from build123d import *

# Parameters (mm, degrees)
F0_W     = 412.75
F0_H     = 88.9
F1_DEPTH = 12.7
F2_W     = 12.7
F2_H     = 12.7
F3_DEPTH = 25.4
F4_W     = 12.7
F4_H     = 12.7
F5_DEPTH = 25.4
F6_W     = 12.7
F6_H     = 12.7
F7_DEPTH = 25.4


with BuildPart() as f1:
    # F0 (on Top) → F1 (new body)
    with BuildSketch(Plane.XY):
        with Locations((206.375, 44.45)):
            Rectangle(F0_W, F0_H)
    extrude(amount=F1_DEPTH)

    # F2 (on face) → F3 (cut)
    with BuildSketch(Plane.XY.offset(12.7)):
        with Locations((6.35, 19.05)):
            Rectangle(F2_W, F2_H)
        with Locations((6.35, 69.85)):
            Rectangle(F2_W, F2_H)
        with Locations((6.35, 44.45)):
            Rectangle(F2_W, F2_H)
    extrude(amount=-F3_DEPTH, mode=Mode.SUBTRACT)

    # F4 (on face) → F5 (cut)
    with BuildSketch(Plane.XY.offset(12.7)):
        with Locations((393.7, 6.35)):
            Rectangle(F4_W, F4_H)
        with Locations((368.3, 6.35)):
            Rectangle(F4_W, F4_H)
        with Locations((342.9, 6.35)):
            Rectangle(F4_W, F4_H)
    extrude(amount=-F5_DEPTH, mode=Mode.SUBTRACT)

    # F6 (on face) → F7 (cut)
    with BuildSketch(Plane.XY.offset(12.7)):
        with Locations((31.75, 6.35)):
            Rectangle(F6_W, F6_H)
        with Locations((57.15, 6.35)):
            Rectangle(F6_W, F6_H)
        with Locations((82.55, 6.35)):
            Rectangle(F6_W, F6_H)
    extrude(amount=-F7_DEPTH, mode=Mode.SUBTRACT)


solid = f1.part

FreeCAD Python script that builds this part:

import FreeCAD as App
import Part
import Sketcher
from FreeCAD import Vector
Q = App.Units.Quantity

doc = App.newDocument("Part")
params = doc.addObject("Spreadsheet::Sheet", "Params")
for row, (alias, value) in enumerate([
    ("sketch1_height", "3.5 in"),
    ("sketch1_width", "16.25 in"),
    ("pad1_length", "0.5 in"),
    ("sketch2_width", "0.5 in"),
    ("pocket1_length", "1 in"),
    ("sketch3_width", "0.5 in"),
    ("pocket2_length", "1 in"),
    ("sketch4_width", "0.5 in"),
    ("pocket3_length", "1 in"),
], start=1):
    params.set(f"A{row}", alias)
    params.set(f"B{row}", "=" + value)
    params.setAlias(f"B{row}", alias)

body = doc.addObject("PartDesign::Body", "Body")

# Sketch on XY plane
sketch1 = body.newObject("Sketcher::SketchObject", "Sketch")
sketch1.AttachmentSupport = (doc.getObject("XY_Plane"), [""])
sketch1.MapMode = "FlatFace"
sketch1.addGeometry(Part.LineSegment(Vector(0, 89, 0), Vector(0, 0, 0)), False)
sketch1.addGeometry(Part.LineSegment(Vector(0, 0, 0), Vector(413, 0, 0)), False)
sketch1.addGeometry(Part.LineSegment(Vector(413, 0, 0), Vector(413, 89, 0)), False)
sketch1.addGeometry(Part.LineSegment(Vector(413, 89, 0), Vector(0, 89, 0)), False)
sketch1.addConstraint(Sketcher.Constraint("Coincident", 0, 2, 1, 1))
sketch1.addConstraint(Sketcher.Constraint("Coincident", 1, 2, 2, 1))
sketch1.addConstraint(Sketcher.Constraint("Coincident", 2, 2, 3, 1))
sketch1.addConstraint(Sketcher.Constraint("Coincident", 3, 2, 0, 1))
sketch1.addConstraint(Sketcher.Constraint("Vertical", 0))
sketch1.addConstraint(Sketcher.Constraint("Horizontal", 1))
sketch1.addConstraint(Sketcher.Constraint("Vertical", 2))
sketch1.addConstraint(Sketcher.Constraint("Horizontal", 3))
sketch1.addConstraint(Sketcher.Constraint("Coincident", 0, 2, -1, 1))
sketch1.addConstraint(Sketcher.Constraint("DistanceY", 0, 2, 0, 1, Q("3.5 in")))
sketch1.addConstraint(Sketcher.Constraint("DistanceX", 1, 1, 1, 2, Q("16.25 in")))
sketch1.setExpression("Constraints[9]", "Params.sketch1_height")
sketch1.setExpression("Constraints[10]", "Params.sketch1_width")
pad1 = body.newObject("PartDesign::Pad", "Pad")
pad1.Profile = sketch1
pad1.setExpression("Length", "Params.pad1_length")

# Sketch on XY plane
sketch2 = body.newObject("Sketcher::SketchObject", "Sketch001")
sketch2.AttachmentSupport = (doc.getObject("XY_Plane"), [""])
sketch2.MapMode = "FlatFace"
sketch2.AttachmentOffset = App.Placement(Vector(0, 0, 0.5 * 25.4), App.Rotation())
sketch2.addGeometry(Part.LineSegment(Vector(0, 25, 0), Vector(0, 13, 0)), False)
sketch2.addGeometry(Part.LineSegment(Vector(0, 13, 0), Vector(13, 13, 0)), False)
sketch2.addGeometry(Part.LineSegment(Vector(13, 13, 0), Vector(13, 25, 0)), False)
sketch2.addGeometry(Part.LineSegment(Vector(13, 25, 0), Vector(0, 25, 0)), False)
sketch2.addGeometry(Part.LineSegment(Vector(0, 76, 0), Vector(0, 64, 0)), False)
sketch2.addGeometry(Part.LineSegment(Vector(0, 64, 0), Vector(13, 64, 0)), False)
sketch2.addGeometry(Part.LineSegment(Vector(13, 64, 0), Vector(13, 76, 0)), False)
sketch2.addGeometry(Part.LineSegment(Vector(13, 76, 0), Vector(0, 76, 0)), False)
sketch2.addGeometry(Part.LineSegment(Vector(0, 51, 0), Vector(0, 38, 0)), False)
sketch2.addGeometry(Part.LineSegment(Vector(0, 38, 0), Vector(13, 38, 0)), False)
sketch2.addGeometry(Part.LineSegment(Vector(13, 38, 0), Vector(13, 51, 0)), False)
sketch2.addGeometry(Part.LineSegment(Vector(13, 51, 0), Vector(0, 51, 0)), False)
sketch2.addConstraint(Sketcher.Constraint("Coincident", 0, 2, 1, 1))
sketch2.addConstraint(Sketcher.Constraint("Coincident", 1, 2, 2, 1))
sketch2.addConstraint(Sketcher.Constraint("Coincident", 2, 2, 3, 1))
sketch2.addConstraint(Sketcher.Constraint("Coincident", 3, 2, 0, 1))
sketch2.addConstraint(Sketcher.Constraint("Coincident", 4, 2, 5, 1))
sketch2.addConstraint(Sketcher.Constraint("Coincident", 5, 2, 6, 1))
sketch2.addConstraint(Sketcher.Constraint("Coincident", 6, 2, 7, 1))
sketch2.addConstraint(Sketcher.Constraint("Coincident", 7, 2, 4, 1))
sketch2.addConstraint(Sketcher.Constraint("Coincident", 8, 2, 9, 1))
sketch2.addConstraint(Sketcher.Constraint("Coincident", 9, 2, 10, 1))
sketch2.addConstraint(Sketcher.Constraint("Coincident", 10, 2, 11, 1))
sketch2.addConstraint(Sketcher.Constraint("Coincident", 11, 2, 8, 1))
sketch2.addConstraint(Sketcher.Constraint("Vertical", 0))
sketch2.addConstraint(Sketcher.Constraint("Horizontal", 1))
sketch2.addConstraint(Sketcher.Constraint("Vertical", 2))
sketch2.addConstraint(Sketcher.Constraint("Horizontal", 3))
sketch2.addConstraint(Sketcher.Constraint("Vertical", 4))
sketch2.addConstraint(Sketcher.Constraint("Horizontal", 5))
sketch2.addConstraint(Sketcher.Constraint("Vertical", 6))
sketch2.addConstraint(Sketcher.Constraint("Horizontal", 7))
sketch2.addConstraint(Sketcher.Constraint("Vertical", 8))
sketch2.addConstraint(Sketcher.Constraint("Horizontal", 9))
sketch2.addConstraint(Sketcher.Constraint("Vertical", 10))
sketch2.addConstraint(Sketcher.Constraint("Horizontal", 11))
sketch2.addConstraint(Sketcher.Constraint("PointOnObject", 0, 2, -2))
sketch2.addConstraint(Sketcher.Constraint("PointOnObject", 4, 2, -2))
sketch2.addConstraint(Sketcher.Constraint("PointOnObject", 8, 2, -2))
sketch2.addConstraint(Sketcher.Constraint("Vertical", 2, 2, 5, 2))
sketch2.addConstraint(Sketcher.Constraint("Vertical", 6, 2, 9, 2))
sketch2.addConstraint(Sketcher.Constraint("Equal", 11, 0))
sketch2.addConstraint(Sketcher.Constraint("Equal", 2, 4))
sketch2.addConstraint(Sketcher.Constraint("Equal", 6, 8))
sketch2.addConstraint(Sketcher.Constraint("DistanceX", 1, 1, 1, 2, Q("0.5 in")))
sketch2.addConstraint(Sketcher.Constraint("DistanceY", -1, 1, 2, 2, Q("1 in")))
sketch2.addConstraint(Sketcher.Constraint("DistanceY", -1, 1, 6, 2, Q("3 in")))
sketch2.addConstraint(Sketcher.Constraint("DistanceY", -1, 1, 10, 2, Q("2 in")))
sketch2.setExpression("Constraints[32]", "Params.sketch2_width")
pocket1 = body.newObject("PartDesign::Pocket", "Pocket")
pocket1.Profile = sketch2
pocket1.setExpression("Length", "Params.pocket1_length")

# Sketch on XY plane
sketch3 = body.newObject("Sketcher::SketchObject", "Sketch002")
sketch3.AttachmentSupport = (doc.getObject("XY_Plane"), [""])
sketch3.MapMode = "FlatFace"
sketch3.AttachmentOffset = App.Placement(Vector(0, 0, 0.5 * 25.4), App.Rotation())
sketch3.addGeometry(Part.LineSegment(Vector(387, 13, 0), Vector(387, 0, 0)), False)
sketch3.addGeometry(Part.LineSegment(Vector(387, 0, 0), Vector(400, 0, 0)), False)
sketch3.addGeometry(Part.LineSegment(Vector(400, 0, 0), Vector(400, 13, 0)), False)
sketch3.addGeometry(Part.LineSegment(Vector(400, 13, 0), Vector(387, 13, 0)), False)
sketch3.addGeometry(Part.LineSegment(Vector(362, 13, 0), Vector(362, 0, 0)), False)
sketch3.addGeometry(Part.LineSegment(Vector(362, 0, 0), Vector(375, 0, 0)), False)
sketch3.addGeometry(Part.LineSegment(Vector(375, 0, 0), Vector(375, 13, 0)), False)
sketch3.addGeometry(Part.LineSegment(Vector(375, 13, 0), Vector(362, 13, 0)), False)
sketch3.addGeometry(Part.LineSegment(Vector(337, 13, 0), Vector(337, 0, 0)), False)
sketch3.addGeometry(Part.LineSegment(Vector(337, 0, 0), Vector(349, 0, 0)), False)
sketch3.addGeometry(Part.LineSegment(Vector(349, 0, 0), Vector(349, 13, 0)), False)
sketch3.addGeometry(Part.LineSegment(Vector(349, 13, 0), Vector(337, 13, 0)), False)
sketch3.addConstraint(Sketcher.Constraint("Coincident", 0, 2, 1, 1))
sketch3.addConstraint(Sketcher.Constraint("Coincident", 1, 2, 2, 1))
sketch3.addConstraint(Sketcher.Constraint("Coincident", 2, 2, 3, 1))
sketch3.addConstraint(Sketcher.Constraint("Coincident", 3, 2, 0, 1))
sketch3.addConstraint(Sketcher.Constraint("Coincident", 4, 2, 5, 1))
sketch3.addConstraint(Sketcher.Constraint("Coincident", 5, 2, 6, 1))
sketch3.addConstraint(Sketcher.Constraint("Coincident", 6, 2, 7, 1))
sketch3.addConstraint(Sketcher.Constraint("Coincident", 7, 2, 4, 1))
sketch3.addConstraint(Sketcher.Constraint("Coincident", 8, 2, 9, 1))
sketch3.addConstraint(Sketcher.Constraint("Coincident", 9, 2, 10, 1))
sketch3.addConstraint(Sketcher.Constraint("Coincident", 10, 2, 11, 1))
sketch3.addConstraint(Sketcher.Constraint("Coincident", 11, 2, 8, 1))
sketch3.addConstraint(Sketcher.Constraint("Vertical", 0))
sketch3.addConstraint(Sketcher.Constraint("Horizontal", 1))
sketch3.addConstraint(Sketcher.Constraint("Vertical", 2))
sketch3.addConstraint(Sketcher.Constraint("Horizontal", 3))
sketch3.addConstraint(Sketcher.Constraint("Vertical", 4))
sketch3.addConstraint(Sketcher.Constraint("Horizontal", 5))
sketch3.addConstraint(Sketcher.Constraint("Vertical", 6))
sketch3.addConstraint(Sketcher.Constraint("Horizontal", 7))
sketch3.addConstraint(Sketcher.Constraint("Vertical", 8))
sketch3.addConstraint(Sketcher.Constraint("Horizontal", 9))
sketch3.addConstraint(Sketcher.Constraint("Vertical", 10))
sketch3.addConstraint(Sketcher.Constraint("Horizontal", 11))
sketch3.addConstraint(Sketcher.Constraint("PointOnObject", 0, 2, -1))
sketch3.addConstraint(Sketcher.Constraint("PointOnObject", 4, 2, -1))
sketch3.addConstraint(Sketcher.Constraint("PointOnObject", 8, 2, -1))
sketch3.addConstraint(Sketcher.Constraint("Horizontal", 3, 2, 6, 2))
sketch3.addConstraint(Sketcher.Constraint("Horizontal", 7, 2, 10, 2))
sketch3.addConstraint(Sketcher.Constraint("Equal", 3, 5))
sketch3.addConstraint(Sketcher.Constraint("Equal", 7, 9))
sketch3.addConstraint(Sketcher.Constraint("Equal", 11, 0))
sketch3.addConstraint(Sketcher.Constraint("DistanceX", 1, 1, 1, 2, Q("0.5 in")))
sketch3.addConstraint(Sketcher.Constraint("DistanceX", 4, 2, 0, 2, Q("1 in")))
sketch3.addConstraint(Sketcher.Constraint("DistanceX", 8, 2, 4, 2, Q("1 in")))
sketch3.addConstraint(Sketcher.Constraint("DistanceX", -1, 1, 0, 2, Q("15.25 in")))
sketch3.setExpression("Constraints[32]", "Params.sketch3_width")
pocket2 = body.newObject("PartDesign::Pocket", "Pocket001")
pocket2.Profile = sketch3
pocket2.setExpression("Length", "Params.pocket2_length")

# Sketch on XY plane
sketch4 = body.newObject("Sketcher::SketchObject", "Sketch003")
sketch4.AttachmentSupport = (doc.getObject("XY_Plane"), [""])
sketch4.MapMode = "FlatFace"
sketch4.AttachmentOffset = App.Placement(Vector(0, 0, 0.5 * 25.4), App.Rotation())
sketch4.addGeometry(Part.LineSegment(Vector(25, 13, 0), Vector(25, 0, 0)), False)
sketch4.addGeometry(Part.LineSegment(Vector(25, 0, 0), Vector(38, 0, 0)), False)
sketch4.addGeometry(Part.LineSegment(Vector(38, 0, 0), Vector(38, 13, 0)), False)
sketch4.addGeometry(Part.LineSegment(Vector(38, 13, 0), Vector(25, 13, 0)), False)
sketch4.addGeometry(Part.LineSegment(Vector(51, 13, 0), Vector(51, 0, 0)), False)
sketch4.addGeometry(Part.LineSegment(Vector(51, 0, 0), Vector(64, 0, 0)), False)
sketch4.addGeometry(Part.LineSegment(Vector(64, 0, 0), Vector(64, 13, 0)), False)
sketch4.addGeometry(Part.LineSegment(Vector(64, 13, 0), Vector(51, 13, 0)), False)
sketch4.addGeometry(Part.LineSegment(Vector(76, 13, 0), Vector(76, 0, 0)), False)
sketch4.addGeometry(Part.LineSegment(Vector(76, 0, 0), Vector(89, 0, 0)), False)
sketch4.addGeometry(Part.LineSegment(Vector(89, 0, 0), Vector(89, 13, 0)), False)
sketch4.addGeometry(Part.LineSegment(Vector(89, 13, 0), Vector(76, 13, 0)), False)
sketch4.addConstraint(Sketcher.Constraint("Coincident", 0, 2, 1, 1))
sketch4.addConstraint(Sketcher.Constraint("Coincident", 1, 2, 2, 1))
sketch4.addConstraint(Sketcher.Constraint("Coincident", 2, 2, 3, 1))
sketch4.addConstraint(Sketcher.Constraint("Coincident", 3, 2, 0, 1))
sketch4.addConstraint(Sketcher.Constraint("Coincident", 4, 2, 5, 1))
sketch4.addConstraint(Sketcher.Constraint("Coincident", 5, 2, 6, 1))
sketch4.addConstraint(Sketcher.Constraint("Coincident", 6, 2, 7, 1))
sketch4.addConstraint(Sketcher.Constraint("Coincident", 7, 2, 4, 1))
sketch4.addConstraint(Sketcher.Constraint("Coincident", 8, 2, 9, 1))
sketch4.addConstraint(Sketcher.Constraint("Coincident", 9, 2, 10, 1))
sketch4.addConstraint(Sketcher.Constraint("Coincident", 10, 2, 11, 1))
sketch4.addConstraint(Sketcher.Constraint("Coincident", 11, 2, 8, 1))
sketch4.addConstraint(Sketcher.Constraint("Vertical", 0))
sketch4.addConstraint(Sketcher.Constraint("Horizontal", 1))
sketch4.addConstraint(Sketcher.Constraint("Vertical", 2))
sketch4.addConstraint(Sketcher.Constraint("Horizontal", 3))
sketch4.addConstraint(Sketcher.Constraint("Vertical", 4))
sketch4.addConstraint(Sketcher.Constraint("Horizontal", 5))
sketch4.addConstraint(Sketcher.Constraint("Vertical", 6))
sketch4.addConstraint(Sketcher.Constraint("Horizontal", 7))
sketch4.addConstraint(Sketcher.Constraint("Vertical", 8))
sketch4.addConstraint(Sketcher.Constraint("Horizontal", 9))
sketch4.addConstraint(Sketcher.Constraint("Vertical", 10))
sketch4.addConstraint(Sketcher.Constraint("Horizontal", 11))
sketch4.addConstraint(Sketcher.Constraint("PointOnObject", 0, 2, -1))
sketch4.addConstraint(Sketcher.Constraint("PointOnObject", 4, 2, -1))
sketch4.addConstraint(Sketcher.Constraint("PointOnObject", 8, 2, -1))
sketch4.addConstraint(Sketcher.Constraint("Horizontal", 3, 2, 6, 2))
sketch4.addConstraint(Sketcher.Constraint("Horizontal", 7, 2, 10, 2))
sketch4.addConstraint(Sketcher.Constraint("Equal", 3, 5))
sketch4.addConstraint(Sketcher.Constraint("Equal", 7, 9))
sketch4.addConstraint(Sketcher.Constraint("Equal", 11, 0))
sketch4.addConstraint(Sketcher.Constraint("DistanceX", 1, 1, 1, 2, Q("0.5 in")))
sketch4.addConstraint(Sketcher.Constraint("DistanceX", -1, 1, 0, 2, Q("1 in")))
sketch4.addConstraint(Sketcher.Constraint("DistanceX", -1, 1, 4, 2, Q("2 in")))
sketch4.addConstraint(Sketcher.Constraint("DistanceX", -1, 1, 8, 2, Q("3 in")))
sketch4.setExpression("Constraints[32]", "Params.sketch4_width")
pocket3 = body.newObject("PartDesign::Pocket", "Pocket002")
pocket3.Profile = sketch4
pocket3.setExpression("Length", "Params.pocket3_length")

doc.recompute()
